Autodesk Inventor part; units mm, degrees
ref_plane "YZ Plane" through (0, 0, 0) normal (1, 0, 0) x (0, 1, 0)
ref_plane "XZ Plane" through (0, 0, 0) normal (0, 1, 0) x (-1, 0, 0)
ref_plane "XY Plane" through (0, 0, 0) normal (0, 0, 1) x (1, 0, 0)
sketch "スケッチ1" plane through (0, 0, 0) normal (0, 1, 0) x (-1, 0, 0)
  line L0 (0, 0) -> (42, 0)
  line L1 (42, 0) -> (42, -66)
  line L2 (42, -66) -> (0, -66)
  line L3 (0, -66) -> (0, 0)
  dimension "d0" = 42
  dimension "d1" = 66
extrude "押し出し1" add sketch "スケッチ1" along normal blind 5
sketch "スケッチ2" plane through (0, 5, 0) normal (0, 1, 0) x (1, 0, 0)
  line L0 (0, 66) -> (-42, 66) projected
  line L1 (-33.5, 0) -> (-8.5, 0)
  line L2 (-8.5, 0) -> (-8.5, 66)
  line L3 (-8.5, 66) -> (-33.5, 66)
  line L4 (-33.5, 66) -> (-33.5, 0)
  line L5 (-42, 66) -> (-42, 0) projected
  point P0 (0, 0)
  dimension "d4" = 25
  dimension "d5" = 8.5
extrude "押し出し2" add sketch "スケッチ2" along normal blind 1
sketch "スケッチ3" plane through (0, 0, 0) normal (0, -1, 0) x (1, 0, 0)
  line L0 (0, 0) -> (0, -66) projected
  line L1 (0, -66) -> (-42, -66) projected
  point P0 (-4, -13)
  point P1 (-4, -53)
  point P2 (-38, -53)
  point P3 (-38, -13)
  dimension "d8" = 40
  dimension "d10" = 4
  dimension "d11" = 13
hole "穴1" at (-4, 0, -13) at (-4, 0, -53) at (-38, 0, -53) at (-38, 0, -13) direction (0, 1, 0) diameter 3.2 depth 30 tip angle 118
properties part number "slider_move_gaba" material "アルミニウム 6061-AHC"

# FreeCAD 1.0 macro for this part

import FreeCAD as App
import Part
import Sketcher
from FreeCAD import Vector

doc = App.newDocument("Part")
body = doc.addObject("PartDesign::Body", "Body")

# Sketch on XZ plane
sketch1 = body.newObject("Sketcher::SketchObject", "Sketch")
sketch1.AttachmentSupport = (doc.getObject("XZ_Plane"), [""])
sketch1.MapMode = "FlatFace"
sketch1.addGeometry([
    Part.LineSegment(Vector(-42, 0, 0), Vector(0, 0, 0)),
    Part.LineSegment(Vector(0, 0, 0), Vector(0, -66, 0)),
    Part.LineSegment(Vector(0, -66, 0), Vector(-42, -66, 0)),
    Part.LineSegment(Vector(-42, -66, 0), Vector(-42, 0, 0)),
], False)
sketch1.addConstraint([
    Sketcher.Constraint("Coincident", 0, 2, 1, 1),
    Sketcher.Constraint("Coincident", 1, 2, 2, 1),
    Sketcher.Constraint("Coincident", 2, 2, 3, 1),
    Sketcher.Constraint("Coincident", 3, 2, 0, 1),
    Sketcher.Constraint("Horizontal", 0),
    Sketcher.Constraint("Vertical", 1),
    Sketcher.Constraint("Horizontal", 2),
    Sketcher.Constraint("Vertical", 3),
    Sketcher.Constraint("Coincident", 0, 2, -1, 1),
    Sketcher.Constraint("DistanceX", 0, 1, 0, 2, 42.0),
    Sketcher.Constraint("DistanceY", 1, 2, 1, 1, 66.0),
])
pad1 = body.newObject("PartDesign::Pad", "Pad")
pad1.Profile = sketch1
pad1.Length = 5
pad1.Reversed = True

# Sketch on XZ plane
sketch2 = body.newObject("Sketcher::SketchObject", "Sketch001")
sketch2.AttachmentSupport = (doc.getObject("XZ_Plane"), [""])
sketch2.MapMode = "FlatFace"
sketch2.AttachmentOffset = App.Placement(Vector(0, 0, -5), App.Rotation())
sketch2.addGeometry([
    Part.LineSegment(Vector(-8, 0, 0), Vector(-8, -66, 0)),
    Part.LineSegment(Vector(-8, -66, 0), Vector(-34, -66, 0)),
    Part.LineSegment(Vector(-34, -66, 0), Vector(-34, 0, 0)),
    Part.LineSegment(Vector(-34, 0, 0), Vector(-8, 0, 0)),
], False)
sketch2.addConstraint([
    Sketcher.Constraint("Coincident", 0, 2, 1, 1),
    Sketcher.Constraint("Coincident", 1, 2, 2, 1),
    Sketcher.Constraint("Coincident", 2, 2, 3, 1),
    Sketcher.Constraint("Coincident", 3, 2, 0, 1),
    Sketcher.Constraint("Vertical", 0),
    Sketcher.Constraint("Horizontal", 1),
    Sketcher.Constraint("Vertical", 2),
    Sketcher.Constraint("Horizontal", 3),
    Sketcher.Constraint("PointOnObject", 2, 2, -1),
    Sketcher.Constraint("DistanceX", 1, 2, 1, 1, 25.0),
    Sketcher.Constraint("DistanceX", 0, 2, -1, 1, 8.5),
    Sketcher.Constraint("DistanceY", 0, 2, 0, 1, 66.0),
])
pad2 = body.newObject("PartDesign::Pad", "Pad001")
pad2.Profile = sketch2
pad2.Length = 1
pad2.Reversed = True

# Sketch on XZ plane
sketch3 = body.newObject("Sketcher::SketchObject", "Sketch002")
sketch3.AttachmentSupport = (doc.getObject("XZ_Plane"), [""])
sketch3.MapMode = "FlatFace"
sketch3.addGeometry([
    Part.Circle(Vector(-4, -13, 0), Vector(0, 0, 1), 1.6),
    Part.Circle(Vector(-4, -53, 0), Vector(0, 0, 1), 1.6),
    Part.Circle(Vector(-38, -53, 0), Vector(0, 0, 1), 1.6),
    Part.Circle(Vector(-38, -13, 0), Vector(0, 0, 1), 1.6),
], False)
sketch3.addConstraint([
    Sketcher.Constraint("Equal", 0, 1),
    Sketcher.Constraint("Equal", 1, 2),
    Sketcher.Constraint("Equal", 2, 3),
    Sketcher.Constraint("Horizontal", 1, 3, 2, 3),
    Sketcher.Constraint("Horizontal", 0, 3, 3, 3),
    Sketcher.Constraint("Vertical", 0, 3, 1, 3),
    Sketcher.Constraint("Vertical", 2, 3, 3, 3),
    Sketcher.Constraint("Diameter", 0, 3.2),
    Sketcher.Constraint("DistanceX", 0, 3, -1, 1, 4.0),
    Sketcher.Constraint("DistanceY", 0, 3, -1, 1, 13.0),
    Sketcher.Constraint("DistanceY", 1, 3, -1, 1, 53.0),
    Sketcher.Constraint("DistanceX", 2, 3, -1, 1, 38.0),
])
doc.recompute()
hole = body.newObject("PartDesign::Hole", "Hole")
hole.Profile = sketch3
hole.ThreadType = "None"
hole.Diameter = 3.2
hole.DepthType = "Dimension"
hole.Depth = 30
hole.DrillPoint = "Angled"
hole.DrillPointAngle = 118

doc.recompute()
